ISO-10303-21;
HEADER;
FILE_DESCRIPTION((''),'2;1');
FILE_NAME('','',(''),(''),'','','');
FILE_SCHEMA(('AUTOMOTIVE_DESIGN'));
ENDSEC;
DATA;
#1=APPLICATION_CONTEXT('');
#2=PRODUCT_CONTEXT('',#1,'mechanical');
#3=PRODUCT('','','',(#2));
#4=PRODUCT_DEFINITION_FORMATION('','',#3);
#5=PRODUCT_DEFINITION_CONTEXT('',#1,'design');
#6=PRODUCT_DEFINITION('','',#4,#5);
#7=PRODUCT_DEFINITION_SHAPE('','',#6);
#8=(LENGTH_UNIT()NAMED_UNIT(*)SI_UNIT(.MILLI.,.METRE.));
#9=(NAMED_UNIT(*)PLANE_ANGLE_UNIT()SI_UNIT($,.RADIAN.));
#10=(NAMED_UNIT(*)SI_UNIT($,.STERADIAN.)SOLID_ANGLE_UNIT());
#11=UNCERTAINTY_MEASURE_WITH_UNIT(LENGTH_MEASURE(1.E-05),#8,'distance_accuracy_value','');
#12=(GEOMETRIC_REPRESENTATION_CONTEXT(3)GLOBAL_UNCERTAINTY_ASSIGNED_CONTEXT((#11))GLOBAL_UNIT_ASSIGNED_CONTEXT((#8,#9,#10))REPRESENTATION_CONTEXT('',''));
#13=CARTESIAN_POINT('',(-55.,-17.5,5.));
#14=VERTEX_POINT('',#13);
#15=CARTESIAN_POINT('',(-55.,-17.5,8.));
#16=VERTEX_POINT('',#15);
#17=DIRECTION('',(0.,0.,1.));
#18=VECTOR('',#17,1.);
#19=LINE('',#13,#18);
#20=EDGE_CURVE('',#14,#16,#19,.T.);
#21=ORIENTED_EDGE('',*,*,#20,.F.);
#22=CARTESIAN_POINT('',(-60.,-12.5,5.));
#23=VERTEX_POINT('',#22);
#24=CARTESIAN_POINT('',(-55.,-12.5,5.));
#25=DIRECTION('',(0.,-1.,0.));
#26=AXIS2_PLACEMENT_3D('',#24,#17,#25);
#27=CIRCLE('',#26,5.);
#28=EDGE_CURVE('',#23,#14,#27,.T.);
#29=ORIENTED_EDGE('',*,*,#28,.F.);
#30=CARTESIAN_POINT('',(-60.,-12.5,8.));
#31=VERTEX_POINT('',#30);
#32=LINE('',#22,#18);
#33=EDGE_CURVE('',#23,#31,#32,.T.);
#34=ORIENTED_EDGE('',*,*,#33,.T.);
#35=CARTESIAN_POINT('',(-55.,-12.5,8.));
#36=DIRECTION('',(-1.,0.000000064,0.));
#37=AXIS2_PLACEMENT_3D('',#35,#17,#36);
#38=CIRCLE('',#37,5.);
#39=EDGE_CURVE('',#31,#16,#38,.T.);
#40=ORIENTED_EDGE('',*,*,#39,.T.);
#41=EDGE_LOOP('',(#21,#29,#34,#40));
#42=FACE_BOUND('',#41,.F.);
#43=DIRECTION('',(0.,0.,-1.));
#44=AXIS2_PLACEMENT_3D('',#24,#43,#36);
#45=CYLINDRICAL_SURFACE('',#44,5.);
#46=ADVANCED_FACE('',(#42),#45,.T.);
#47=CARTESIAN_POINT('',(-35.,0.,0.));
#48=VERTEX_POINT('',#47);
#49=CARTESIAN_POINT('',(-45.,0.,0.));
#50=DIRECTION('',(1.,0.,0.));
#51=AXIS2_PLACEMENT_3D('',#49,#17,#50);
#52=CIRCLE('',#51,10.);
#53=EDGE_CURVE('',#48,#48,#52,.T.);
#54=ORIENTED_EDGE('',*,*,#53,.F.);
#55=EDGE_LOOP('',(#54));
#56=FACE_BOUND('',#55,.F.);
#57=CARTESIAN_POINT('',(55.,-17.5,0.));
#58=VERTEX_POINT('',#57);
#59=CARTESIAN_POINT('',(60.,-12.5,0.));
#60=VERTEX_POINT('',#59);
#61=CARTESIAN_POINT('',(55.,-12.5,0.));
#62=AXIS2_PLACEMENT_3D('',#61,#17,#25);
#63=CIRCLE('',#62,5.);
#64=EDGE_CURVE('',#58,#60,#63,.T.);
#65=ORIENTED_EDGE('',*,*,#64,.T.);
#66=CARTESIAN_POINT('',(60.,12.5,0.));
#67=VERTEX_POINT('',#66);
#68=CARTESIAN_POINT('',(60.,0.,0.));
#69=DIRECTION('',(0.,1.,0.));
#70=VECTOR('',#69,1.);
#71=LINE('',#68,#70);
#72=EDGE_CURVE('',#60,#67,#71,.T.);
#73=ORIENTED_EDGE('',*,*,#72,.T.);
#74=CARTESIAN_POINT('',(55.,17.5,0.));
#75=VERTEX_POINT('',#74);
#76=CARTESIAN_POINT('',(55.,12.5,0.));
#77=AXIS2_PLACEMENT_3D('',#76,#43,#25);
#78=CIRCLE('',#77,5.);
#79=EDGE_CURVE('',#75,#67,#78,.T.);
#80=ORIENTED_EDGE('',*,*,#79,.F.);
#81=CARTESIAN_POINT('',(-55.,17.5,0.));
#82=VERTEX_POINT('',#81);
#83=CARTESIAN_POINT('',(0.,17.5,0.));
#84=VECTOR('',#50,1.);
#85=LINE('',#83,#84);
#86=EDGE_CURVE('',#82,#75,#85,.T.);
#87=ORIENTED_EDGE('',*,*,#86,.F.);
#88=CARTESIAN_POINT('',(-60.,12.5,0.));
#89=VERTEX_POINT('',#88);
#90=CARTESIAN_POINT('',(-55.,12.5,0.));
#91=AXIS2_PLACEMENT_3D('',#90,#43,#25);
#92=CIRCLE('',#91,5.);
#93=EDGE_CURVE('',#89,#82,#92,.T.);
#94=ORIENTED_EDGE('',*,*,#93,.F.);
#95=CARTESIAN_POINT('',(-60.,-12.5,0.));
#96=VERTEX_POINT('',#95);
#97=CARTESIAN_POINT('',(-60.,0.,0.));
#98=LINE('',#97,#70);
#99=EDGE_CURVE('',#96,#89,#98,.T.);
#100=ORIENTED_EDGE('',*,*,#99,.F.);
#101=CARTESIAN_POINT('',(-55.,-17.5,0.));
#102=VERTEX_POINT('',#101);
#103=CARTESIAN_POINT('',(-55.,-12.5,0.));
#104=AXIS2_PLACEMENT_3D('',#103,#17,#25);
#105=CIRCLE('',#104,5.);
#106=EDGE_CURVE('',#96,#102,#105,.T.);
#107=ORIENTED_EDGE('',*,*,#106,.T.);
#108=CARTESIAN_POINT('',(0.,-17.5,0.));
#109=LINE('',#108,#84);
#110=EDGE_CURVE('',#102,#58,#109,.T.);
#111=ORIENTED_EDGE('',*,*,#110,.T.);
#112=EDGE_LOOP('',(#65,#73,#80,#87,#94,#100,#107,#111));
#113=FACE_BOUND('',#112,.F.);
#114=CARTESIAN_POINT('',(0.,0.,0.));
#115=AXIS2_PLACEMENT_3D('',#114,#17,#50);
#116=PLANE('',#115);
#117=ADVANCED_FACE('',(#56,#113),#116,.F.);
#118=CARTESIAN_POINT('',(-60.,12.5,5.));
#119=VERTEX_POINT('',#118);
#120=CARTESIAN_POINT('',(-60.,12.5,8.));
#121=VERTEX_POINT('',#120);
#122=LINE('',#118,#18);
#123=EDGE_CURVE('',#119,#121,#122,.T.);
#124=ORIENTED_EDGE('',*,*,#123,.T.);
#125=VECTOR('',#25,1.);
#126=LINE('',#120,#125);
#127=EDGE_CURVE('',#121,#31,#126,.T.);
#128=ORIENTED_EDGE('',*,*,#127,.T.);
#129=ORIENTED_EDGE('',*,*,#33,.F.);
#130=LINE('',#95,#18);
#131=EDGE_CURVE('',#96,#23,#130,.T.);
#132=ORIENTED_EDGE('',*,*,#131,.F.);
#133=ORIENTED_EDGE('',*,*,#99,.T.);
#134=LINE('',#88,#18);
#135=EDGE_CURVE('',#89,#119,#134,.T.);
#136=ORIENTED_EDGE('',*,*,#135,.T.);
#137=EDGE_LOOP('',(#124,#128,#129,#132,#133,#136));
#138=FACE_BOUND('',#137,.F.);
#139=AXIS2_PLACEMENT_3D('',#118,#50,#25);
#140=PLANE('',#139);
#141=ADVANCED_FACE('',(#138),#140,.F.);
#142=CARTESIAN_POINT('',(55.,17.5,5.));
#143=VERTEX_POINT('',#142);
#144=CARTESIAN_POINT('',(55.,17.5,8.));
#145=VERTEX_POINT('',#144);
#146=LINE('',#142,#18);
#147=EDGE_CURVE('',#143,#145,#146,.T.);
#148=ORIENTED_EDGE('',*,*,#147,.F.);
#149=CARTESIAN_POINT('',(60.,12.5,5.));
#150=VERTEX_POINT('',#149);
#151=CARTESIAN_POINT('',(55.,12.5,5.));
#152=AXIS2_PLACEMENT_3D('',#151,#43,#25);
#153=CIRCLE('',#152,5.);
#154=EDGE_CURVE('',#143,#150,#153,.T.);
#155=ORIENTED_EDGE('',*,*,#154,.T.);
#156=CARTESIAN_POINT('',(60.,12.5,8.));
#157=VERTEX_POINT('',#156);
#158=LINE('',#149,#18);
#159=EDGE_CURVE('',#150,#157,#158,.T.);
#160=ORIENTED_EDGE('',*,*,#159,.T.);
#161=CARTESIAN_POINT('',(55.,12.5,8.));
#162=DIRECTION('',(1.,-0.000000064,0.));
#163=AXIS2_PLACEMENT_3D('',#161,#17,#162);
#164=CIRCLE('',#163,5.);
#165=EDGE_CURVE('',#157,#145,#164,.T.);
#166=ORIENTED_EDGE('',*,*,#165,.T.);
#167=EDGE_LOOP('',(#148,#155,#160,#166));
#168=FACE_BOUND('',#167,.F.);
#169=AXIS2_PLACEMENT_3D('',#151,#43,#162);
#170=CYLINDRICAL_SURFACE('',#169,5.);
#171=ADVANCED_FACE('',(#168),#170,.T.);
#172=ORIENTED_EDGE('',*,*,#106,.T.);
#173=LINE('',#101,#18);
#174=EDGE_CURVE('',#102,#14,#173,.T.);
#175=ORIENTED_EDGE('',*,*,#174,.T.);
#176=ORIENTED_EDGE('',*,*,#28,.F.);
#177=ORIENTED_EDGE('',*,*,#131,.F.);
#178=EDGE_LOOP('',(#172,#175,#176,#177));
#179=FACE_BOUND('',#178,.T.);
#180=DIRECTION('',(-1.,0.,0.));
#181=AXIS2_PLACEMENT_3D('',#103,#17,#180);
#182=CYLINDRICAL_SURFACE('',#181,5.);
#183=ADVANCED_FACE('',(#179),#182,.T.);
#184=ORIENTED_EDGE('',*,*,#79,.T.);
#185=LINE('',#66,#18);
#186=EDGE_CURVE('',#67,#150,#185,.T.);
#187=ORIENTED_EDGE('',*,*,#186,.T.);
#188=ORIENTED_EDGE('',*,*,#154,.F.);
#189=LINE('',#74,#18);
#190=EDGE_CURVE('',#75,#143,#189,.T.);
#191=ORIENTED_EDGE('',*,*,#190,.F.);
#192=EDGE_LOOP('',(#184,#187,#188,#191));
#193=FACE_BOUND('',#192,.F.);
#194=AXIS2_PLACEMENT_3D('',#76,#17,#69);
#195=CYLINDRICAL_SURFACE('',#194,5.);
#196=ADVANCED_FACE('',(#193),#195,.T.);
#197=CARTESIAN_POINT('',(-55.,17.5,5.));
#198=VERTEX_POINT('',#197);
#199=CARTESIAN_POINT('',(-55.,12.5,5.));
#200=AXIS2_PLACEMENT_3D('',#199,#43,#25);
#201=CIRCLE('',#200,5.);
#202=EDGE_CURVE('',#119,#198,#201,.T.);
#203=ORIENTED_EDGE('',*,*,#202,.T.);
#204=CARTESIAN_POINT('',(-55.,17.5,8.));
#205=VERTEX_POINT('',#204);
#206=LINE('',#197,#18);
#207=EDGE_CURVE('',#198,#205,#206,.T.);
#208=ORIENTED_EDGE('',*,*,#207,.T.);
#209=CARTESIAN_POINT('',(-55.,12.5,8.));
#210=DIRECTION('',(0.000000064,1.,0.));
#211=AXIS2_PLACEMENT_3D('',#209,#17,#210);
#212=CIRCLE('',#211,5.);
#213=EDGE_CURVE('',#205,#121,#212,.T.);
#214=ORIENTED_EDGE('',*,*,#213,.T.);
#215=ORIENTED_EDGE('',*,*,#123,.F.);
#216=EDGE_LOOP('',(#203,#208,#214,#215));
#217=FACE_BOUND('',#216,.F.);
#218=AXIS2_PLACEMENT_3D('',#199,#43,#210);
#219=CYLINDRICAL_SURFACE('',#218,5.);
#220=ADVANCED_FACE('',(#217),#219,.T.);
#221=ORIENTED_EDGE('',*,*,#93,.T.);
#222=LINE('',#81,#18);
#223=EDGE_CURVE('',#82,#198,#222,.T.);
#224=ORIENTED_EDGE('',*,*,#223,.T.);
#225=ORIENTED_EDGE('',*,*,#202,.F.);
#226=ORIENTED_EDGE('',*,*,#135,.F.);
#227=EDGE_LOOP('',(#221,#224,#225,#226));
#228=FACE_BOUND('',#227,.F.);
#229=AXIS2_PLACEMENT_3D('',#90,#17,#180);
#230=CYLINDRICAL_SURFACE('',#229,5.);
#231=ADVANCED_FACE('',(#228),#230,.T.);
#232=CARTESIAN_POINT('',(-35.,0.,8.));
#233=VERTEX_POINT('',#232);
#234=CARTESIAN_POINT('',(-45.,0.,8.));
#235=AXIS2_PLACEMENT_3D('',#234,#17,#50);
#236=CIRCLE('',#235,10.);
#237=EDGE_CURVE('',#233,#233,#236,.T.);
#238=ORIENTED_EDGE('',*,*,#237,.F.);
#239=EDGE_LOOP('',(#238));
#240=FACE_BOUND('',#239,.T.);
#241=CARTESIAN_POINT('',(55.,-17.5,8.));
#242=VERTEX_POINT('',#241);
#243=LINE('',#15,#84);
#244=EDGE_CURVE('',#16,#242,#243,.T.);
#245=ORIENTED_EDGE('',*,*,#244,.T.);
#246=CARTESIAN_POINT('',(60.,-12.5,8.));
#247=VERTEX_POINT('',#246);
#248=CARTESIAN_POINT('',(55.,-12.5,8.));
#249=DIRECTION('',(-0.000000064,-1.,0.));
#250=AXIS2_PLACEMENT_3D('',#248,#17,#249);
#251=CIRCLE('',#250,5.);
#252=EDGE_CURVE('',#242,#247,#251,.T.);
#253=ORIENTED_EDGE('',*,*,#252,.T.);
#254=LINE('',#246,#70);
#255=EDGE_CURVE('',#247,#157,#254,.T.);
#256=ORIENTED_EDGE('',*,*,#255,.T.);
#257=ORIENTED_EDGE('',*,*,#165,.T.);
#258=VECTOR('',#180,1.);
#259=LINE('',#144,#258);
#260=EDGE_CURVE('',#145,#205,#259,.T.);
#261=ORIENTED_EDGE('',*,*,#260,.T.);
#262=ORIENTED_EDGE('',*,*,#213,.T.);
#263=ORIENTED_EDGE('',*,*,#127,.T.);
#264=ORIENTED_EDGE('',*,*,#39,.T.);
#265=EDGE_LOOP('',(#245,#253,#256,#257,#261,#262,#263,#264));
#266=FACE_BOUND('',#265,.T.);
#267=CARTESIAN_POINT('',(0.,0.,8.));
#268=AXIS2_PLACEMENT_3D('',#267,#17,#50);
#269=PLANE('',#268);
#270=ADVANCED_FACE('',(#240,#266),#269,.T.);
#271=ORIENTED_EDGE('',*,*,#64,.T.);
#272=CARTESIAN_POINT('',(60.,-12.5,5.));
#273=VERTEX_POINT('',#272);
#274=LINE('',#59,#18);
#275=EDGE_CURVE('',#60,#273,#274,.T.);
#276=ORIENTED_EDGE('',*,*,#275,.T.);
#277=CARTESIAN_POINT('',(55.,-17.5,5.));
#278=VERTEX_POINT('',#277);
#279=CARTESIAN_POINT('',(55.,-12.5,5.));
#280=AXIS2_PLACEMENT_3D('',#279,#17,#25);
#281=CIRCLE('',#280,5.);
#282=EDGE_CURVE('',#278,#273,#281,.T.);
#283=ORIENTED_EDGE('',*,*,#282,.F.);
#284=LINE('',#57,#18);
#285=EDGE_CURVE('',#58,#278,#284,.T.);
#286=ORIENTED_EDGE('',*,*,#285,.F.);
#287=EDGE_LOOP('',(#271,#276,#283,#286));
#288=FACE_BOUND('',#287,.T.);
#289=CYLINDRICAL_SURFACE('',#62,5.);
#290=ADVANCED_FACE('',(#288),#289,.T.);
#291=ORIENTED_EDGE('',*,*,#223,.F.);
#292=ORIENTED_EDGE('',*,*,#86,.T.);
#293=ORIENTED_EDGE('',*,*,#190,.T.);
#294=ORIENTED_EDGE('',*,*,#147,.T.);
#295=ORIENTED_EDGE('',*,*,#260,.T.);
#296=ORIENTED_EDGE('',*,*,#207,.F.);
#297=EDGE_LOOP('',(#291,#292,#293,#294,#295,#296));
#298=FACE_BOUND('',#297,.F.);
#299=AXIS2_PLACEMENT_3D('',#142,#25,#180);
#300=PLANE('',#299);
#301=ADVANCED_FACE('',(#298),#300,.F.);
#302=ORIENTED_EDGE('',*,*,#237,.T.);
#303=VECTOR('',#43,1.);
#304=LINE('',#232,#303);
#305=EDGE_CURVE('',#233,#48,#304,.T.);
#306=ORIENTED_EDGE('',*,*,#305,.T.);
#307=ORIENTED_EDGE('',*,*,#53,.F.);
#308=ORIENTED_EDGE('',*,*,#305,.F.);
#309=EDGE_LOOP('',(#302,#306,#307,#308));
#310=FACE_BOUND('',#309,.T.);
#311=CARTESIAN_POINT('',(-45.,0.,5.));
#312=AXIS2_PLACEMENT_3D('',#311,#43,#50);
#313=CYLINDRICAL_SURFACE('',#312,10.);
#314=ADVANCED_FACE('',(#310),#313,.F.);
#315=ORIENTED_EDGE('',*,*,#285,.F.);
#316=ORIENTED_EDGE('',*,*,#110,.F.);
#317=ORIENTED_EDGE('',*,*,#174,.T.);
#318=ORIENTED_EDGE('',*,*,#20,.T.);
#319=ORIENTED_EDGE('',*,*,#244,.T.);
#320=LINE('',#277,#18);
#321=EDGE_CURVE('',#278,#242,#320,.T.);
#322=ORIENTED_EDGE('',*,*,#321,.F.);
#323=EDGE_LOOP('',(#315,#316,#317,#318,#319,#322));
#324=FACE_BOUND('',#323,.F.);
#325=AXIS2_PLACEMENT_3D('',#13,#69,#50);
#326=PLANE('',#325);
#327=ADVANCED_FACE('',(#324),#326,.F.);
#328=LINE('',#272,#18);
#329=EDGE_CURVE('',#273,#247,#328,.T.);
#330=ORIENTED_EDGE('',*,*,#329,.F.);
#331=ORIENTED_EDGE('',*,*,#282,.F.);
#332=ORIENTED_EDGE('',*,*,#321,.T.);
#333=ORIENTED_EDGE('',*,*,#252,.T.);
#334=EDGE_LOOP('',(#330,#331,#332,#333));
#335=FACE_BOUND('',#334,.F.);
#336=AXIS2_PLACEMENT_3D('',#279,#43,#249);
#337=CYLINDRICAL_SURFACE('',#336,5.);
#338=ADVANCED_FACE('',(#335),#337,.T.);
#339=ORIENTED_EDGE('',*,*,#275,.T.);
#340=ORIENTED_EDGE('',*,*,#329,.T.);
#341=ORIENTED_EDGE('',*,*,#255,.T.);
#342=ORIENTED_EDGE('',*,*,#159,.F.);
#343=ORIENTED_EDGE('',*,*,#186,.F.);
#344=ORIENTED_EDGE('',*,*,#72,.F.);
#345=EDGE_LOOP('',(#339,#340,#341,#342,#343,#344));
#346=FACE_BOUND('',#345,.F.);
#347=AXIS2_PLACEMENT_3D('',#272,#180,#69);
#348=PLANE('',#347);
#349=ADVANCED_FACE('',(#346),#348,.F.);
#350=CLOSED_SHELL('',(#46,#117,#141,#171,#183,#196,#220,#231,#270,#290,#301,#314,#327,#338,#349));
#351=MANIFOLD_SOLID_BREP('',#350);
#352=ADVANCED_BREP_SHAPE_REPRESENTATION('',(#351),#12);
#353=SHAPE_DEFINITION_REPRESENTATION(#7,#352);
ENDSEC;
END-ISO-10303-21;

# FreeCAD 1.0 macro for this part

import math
import FreeCAD as App
import Part
import Sketcher
Q = App.Units.Quantity


def edges_at(feature, points):
    """Names of the edges that pass closest to the given points."""
    edges = feature.Shape.Edges
    near = lambda p: min(range(len(edges)), key=lambda i: edges[i].distToShape(Part.Vertex(*p))[0])
    return sorted({f"Edge{near(p) + 1}" for p in points})

doc = App.newDocument("Part")
params = doc.addObject("Spreadsheet::Sheet", "Params")
for row, (alias, value) in enumerate([
    ("sketch1_diameter", "20 mm"),
    ("sketch1_width", "120 mm"),
    ("sketch1_height", "35 mm"),
    ("pad1_length", "5 mm"),
    ("fillet_radius", "5 mm"),
    ("sketch2_diameter", "20 mm"),
    ("sketch2_radius", "5 mm"),
    ("sketch2_width", "110 mm"),
    ("sketch2_height", "25 mm"),
    ("pad2_length", "3 mm"),
], start=1):
    params.set(f"A{row}", alias)
    params.set(f"B{row}", "=" + value)
    params.setAlias(f"B{row}", alias)

body = doc.addObject("PartDesign::Body", "Body")

sketch1 = body.newObject("Sketcher::SketchObject", "Sketch")
sketch1.AttachmentSupport = (doc.getObject("XY_Plane"), [""])
sketch1.MapMode = "FlatFace"
sketch1.addGeometry([
    Part.LineSegment(App.Vector(-60, 17.5, 0), App.Vector(-60, -17.5, 0)),
    Part.LineSegment(App.Vector(-60, -17.5, 0), App.Vector(60, -17.5, 0)),
    Part.LineSegment(App.Vector(60, -17.5, 0), App.Vector(60, 17.5, 0)),
    Part.LineSegment(App.Vector(60, 17.5, 0), App.Vector(-60, 17.5, 0)),
    Part.Circle(App.Vector(-45, 0, 0), App.Vector(0, 0, 1), 10),
], False)
sketch1.addConstraint([
    Sketcher.Constraint("Coincident", 0, 2, 1, 1),
    Sketcher.Constraint("Coincident", 1, 2, 2, 1),
    Sketcher.Constraint("Coincident", 2, 2, 3, 1),
    Sketcher.Constraint("Coincident", 3, 2, 0, 1),
    Sketcher.Constraint("Vertical", 0),
    Sketcher.Constraint("Horizontal", 1),
    Sketcher.Constraint("Vertical", 2),
    Sketcher.Constraint("Horizontal", 3),
    Sketcher.Constraint("Symmetric", 0, 2, 2, 2, -1, 1),
    Sketcher.Constraint("PointOnObject", 4, 3, -1),
    Sketcher.Constraint("Diameter", 4, Q("20 mm")),
    Sketcher.Constraint("DistanceX", 1, 1, 1, 2, Q("120 mm")),
    Sketcher.Constraint("DistanceY", 0, 2, 0, 1, Q("35 mm")),
    Sketcher.Constraint("DistanceX", 4, 3, -1, 1, Q("45 mm")),
])
sketch1.setExpression("Constraints[10]", "Params.sketch1_diameter")
sketch1.setExpression("Constraints[11]", "Params.sketch1_width")
sketch1.setExpression("Constraints[12]", "Params.sketch1_height")
pad1 = body.newObject("PartDesign::Pad", "Pad")
pad1.Profile = sketch1
pad1.setExpression("Length", "Params.pad1_length")
doc.recompute()

fillet = body.newObject("PartDesign::Fillet", "Fillet")
fillet.Base = (pad1, edges_at(pad1, [
    (-60, -17.5, 2.5),
    (-60, 17.5, 2.5),
    (60, 17.5, 2.5),
    (60, -17.5, 2.5),
]))
fillet.setExpression("Radius", "Params.fillet_radius")

sketch2 = body.newObject("Sketcher::SketchObject", "Sketch001")
sketch2.AttachmentSupport = (doc.getObject("XY_Plane"), [""])
sketch2.MapMode = "FlatFace"
sketch2.AttachmentOffset = App.Placement(App.Vector(0, 0, 5), App.Rotation())
sketch2.addGeometry([
    Part.LineSegment(App.Vector(-60, 12.5, 0), App.Vector(-60, -12.5, 0)),
    Part.ArcOfCircle(Part.Circle(App.Vector(-55, -12.5, 0), App.Vector(0, 0, 1), 5), math.radians(179.999996), math.radians(270.000004)),
    Part.LineSegment(App.Vector(-55, -17.5, 0), App.Vector(55, -17.5, 0)),
    Part.ArcOfCircle(Part.Circle(App.Vector(55, -12.5, 0), App.Vector(0, 0, 1), 5), math.radians(-90.000004), math.radians(0.000004)),
    Part.LineSegment(App.Vector(60, -12.5, 0), App.Vector(60, 12.5, 0)),
    Part.ArcOfCircle(Part.Circle(App.Vector(55, 12.5, 0), App.Vector(0, 0, 1), 5), math.radians(-0.000004), math.radians(90.000004)),
    Part.LineSegment(App.Vector(55, 17.5, 0), App.Vector(-55, 17.5, 0)),
    Part.ArcOfCircle(Part.Circle(App.Vector(-55, 12.5, 0), App.Vector(0, 0, 1), 5), math.radians(89.999996), math.radians(180.000004)),
    Part.Circle(App.Vector(-45, 0, 0), App.Vector(0, 0, 1), 10),
], False)
sketch2.addConstraint([
    Sketcher.Constraint("Tangent", 0, 2, 1, 1),
    Sketcher.Constraint("Tangent", 1, 2, 2, 1),
    Sketcher.Constraint("Tangent", 2, 2, 3, 1),
    Sketcher.Constraint("Tangent", 3, 2, 4, 1),
    Sketcher.Constraint("Tangent", 4, 2, 5, 1),
    Sketcher.Constraint("Tangent", 5, 2, 6, 1),
    Sketcher.Constraint("Tangent", 6, 2, 7, 1),
    Sketcher.Constraint("Tangent", 7, 2, 0, 1),
    Sketcher.Constraint("Vertical", 0),
    Sketcher.Constraint("Horizontal", 2),
    Sketcher.Constraint("Vertical", 4),
    Sketcher.Constraint("Horizontal", 6),
    Sketcher.Constraint("Equal", 1, 3),
    Sketcher.Constraint("Equal", 3, 5),
    Sketcher.Constraint("Equal", 5, 7),
    Sketcher.Constraint("Symmetric", 1, 3, 5, 3, -1, 1),
    Sketcher.Constraint("PointOnObject", 8, 3, -1),
    Sketcher.Constraint("Diameter", 8, Q("20 mm")),
    Sketcher.Constraint("Radius", 1, Q("5 mm")),
    Sketcher.Constraint("DistanceX", 2, 1, 2, 2, Q("110 mm")),
    Sketcher.Constraint("DistanceY", 0, 2, 0, 1, Q("25 mm")),
    Sketcher.Constraint("DistanceX", 8, 3, -1, 1, Q("45 mm")),
])
sketch2.setExpression("Constraints[17]", "Params.sketch2_diameter")
sketch2.setExpression("Constraints[18]", "Params.sketch2_radius")
sketch2.setExpression("Constraints[19]", "Params.sketch2_width")
sketch2.setExpression("Constraints[20]", "Params.sketch2_height")
pad2 = body.newObject("PartDesign::Pad", "Pad001")
pad2.Profile = sketch2
pad2.setExpression("Length", "Params.pad2_length")

doc.recompute()
